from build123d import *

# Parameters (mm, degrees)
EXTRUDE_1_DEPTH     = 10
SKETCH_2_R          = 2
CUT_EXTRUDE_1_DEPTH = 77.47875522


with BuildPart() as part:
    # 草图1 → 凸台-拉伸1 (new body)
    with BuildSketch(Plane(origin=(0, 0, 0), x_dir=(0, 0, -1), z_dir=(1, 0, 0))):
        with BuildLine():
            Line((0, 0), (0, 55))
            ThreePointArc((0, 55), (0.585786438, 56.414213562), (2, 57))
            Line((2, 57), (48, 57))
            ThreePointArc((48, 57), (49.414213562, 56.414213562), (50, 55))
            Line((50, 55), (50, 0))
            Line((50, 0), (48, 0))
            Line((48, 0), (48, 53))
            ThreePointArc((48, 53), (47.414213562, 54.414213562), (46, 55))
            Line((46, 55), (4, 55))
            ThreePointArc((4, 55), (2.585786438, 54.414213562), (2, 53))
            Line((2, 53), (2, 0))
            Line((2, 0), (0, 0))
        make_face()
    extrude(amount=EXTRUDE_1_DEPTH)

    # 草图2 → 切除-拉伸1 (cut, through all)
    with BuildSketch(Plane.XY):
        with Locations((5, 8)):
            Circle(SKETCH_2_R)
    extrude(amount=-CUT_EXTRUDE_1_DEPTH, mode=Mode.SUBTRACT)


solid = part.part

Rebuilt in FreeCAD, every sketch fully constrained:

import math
import FreeCAD as App
import Part
import Sketcher

V = App.Vector
Q = App.Units.Quantity

doc = App.newDocument("Part")
body = doc.addObject("PartDesign::Body", "Body")

# Sketch on YZ plane
sketch1 = body.newObject("Sketcher::SketchObject", "Sketch")
sketch1.AttachmentSupport = (doc.getObject("YZ_Plane"), [""])
sketch1.MapMode = "FlatFace"
sketch1.addGeometry([
    Part.LineSegment(V(55, 0, 0), V(0, 0, 0)),  # 0
    Part.LineSegment(V(0, 0, 0), V(0, -2, 0)),  # 1
    Part.LineSegment(V(0, -2, 0), V(53, -2, 0)),  # 2
    Part.ArcOfCircle(Part.Circle(V(53, -4, 0), V(0, 0, 1), 2), math.radians(0), math.radians(90)),  # 3
    Part.LineSegment(V(55, -4, 0), V(55, -46, 0)),  # 4
    Part.ArcOfCircle(Part.Circle(V(53, -46, 0), V(0, 0, 1), 2), math.radians(-90), math.radians(0)),  # 5
    Part.LineSegment(V(53, -48, 0), V(0, -48, 0)),  # 6
    Part.LineSegment(V(0, -48, 0), V(0, -50, 0)),  # 7
    Part.LineSegment(V(0, -50, 0), V(55, -50, 0)),  # 8
    Part.ArcOfCircle(Part.Circle(V(55, -48, 0), V(0, 0, 1), 2), math.radians(-90), math.radians(0)),  # 9
    Part.LineSegment(V(57, -48, 0), V(57, -2, 0)),  # 10
    Part.ArcOfCircle(Part.Circle(V(55, -2, 0), V(0, 0, 1), 2), math.radians(0), math.radians(90)),  # 11
], False)
sketch1.addConstraint([
    Sketcher.Constraint("Coincident", 0, 2, 1, 1),
    Sketcher.Constraint("Coincident", 1, 2, 2, 1),
    Sketcher.Constraint("Tangent", 2, 2, 3, 2),
    Sketcher.Constraint("Tangent", 3, 1, 4, 1),
    Sketcher.Constraint("Tangent", 4, 2, 5, 2),
    Sketcher.Constraint("Tangent", 5, 1, 6, 1),
    Sketcher.Constraint("Coincident", 6, 2, 7, 1),
    Sketcher.Constraint("Coincident", 7, 2, 8, 1),
    Sketcher.Constraint("Tangent", 8, 2, 9, 1),
    Sketcher.Constraint("Tangent", 9, 2, 10, 1),
    Sketcher.Constraint("Tangent", 10, 2, 11, 1),
    Sketcher.Constraint("Tangent", 11, 2, 0, 1),
    Sketcher.Constraint("Horizontal", 0),
    Sketcher.Constraint("Vertical", 1),
    Sketcher.Constraint("Horizontal", 2),
    Sketcher.Constraint("Vertical", 4),
    Sketcher.Constraint("Horizontal", 6),
    Sketcher.Constraint("Vertical", 7),
    Sketcher.Constraint("Horizontal", 8),
    Sketcher.Constraint("Vertical", 10),
    Sketcher.Constraint("Coincident", 0, 2, -1, 1),
    Sketcher.Constraint("Equal", 3, 5),
    Sketcher.Constraint("Equal", 5, 9),
    Sketcher.Constraint("Equal", 9, 11),
    Sketcher.Constraint("PointOnObject", 6, 2, -2),
    Sketcher.Constraint("Horizontal", 11, 3, 1, 2),
    Sketcher.Constraint("Horizontal", 9, 3, 5, 1),
    Sketcher.Constraint("Vertical", 11, 3, 3, 1),
    Sketcher.Constraint("Radius", 3, Q("2 mm")),
    Sketcher.Constraint("DistanceX", 0, 2, 0, 1, Q("55 mm")),
    Sketcher.Constraint("DistanceY", 4, 2, 4, 1, Q("42 mm")),
])
pad1 = body.newObject("PartDesign::Pad", "Pad")
pad1.Profile = sketch1
pad1.Length = 10

# Sketch on XY plane
sketch2 = body.newObject("Sketcher::SketchObject", "Sketch001")
sketch2.AttachmentSupport = (doc.getObject("XY_Plane"), [""])
sketch2.MapMode = "FlatFace"
sketch2.addGeometry(Part.Circle(V(5, 8, 0), V(0, 0, 1), 2), False)
sketch2.addConstraint([
    Sketcher.Constraint("Diameter", 0, Q("4 mm")),
    Sketcher.Constraint("DistanceX", -1, 1, 0, 3, Q("5 mm")),
    Sketcher.Constraint("DistanceY", -1, 1, 0, 3, Q("8 mm")),
])
pocket1 = body.newObject("PartDesign::Pocket", "Pocket")
pocket1.Profile = sketch2
pocket1.Type = "ThroughAll"

doc.recompute()
